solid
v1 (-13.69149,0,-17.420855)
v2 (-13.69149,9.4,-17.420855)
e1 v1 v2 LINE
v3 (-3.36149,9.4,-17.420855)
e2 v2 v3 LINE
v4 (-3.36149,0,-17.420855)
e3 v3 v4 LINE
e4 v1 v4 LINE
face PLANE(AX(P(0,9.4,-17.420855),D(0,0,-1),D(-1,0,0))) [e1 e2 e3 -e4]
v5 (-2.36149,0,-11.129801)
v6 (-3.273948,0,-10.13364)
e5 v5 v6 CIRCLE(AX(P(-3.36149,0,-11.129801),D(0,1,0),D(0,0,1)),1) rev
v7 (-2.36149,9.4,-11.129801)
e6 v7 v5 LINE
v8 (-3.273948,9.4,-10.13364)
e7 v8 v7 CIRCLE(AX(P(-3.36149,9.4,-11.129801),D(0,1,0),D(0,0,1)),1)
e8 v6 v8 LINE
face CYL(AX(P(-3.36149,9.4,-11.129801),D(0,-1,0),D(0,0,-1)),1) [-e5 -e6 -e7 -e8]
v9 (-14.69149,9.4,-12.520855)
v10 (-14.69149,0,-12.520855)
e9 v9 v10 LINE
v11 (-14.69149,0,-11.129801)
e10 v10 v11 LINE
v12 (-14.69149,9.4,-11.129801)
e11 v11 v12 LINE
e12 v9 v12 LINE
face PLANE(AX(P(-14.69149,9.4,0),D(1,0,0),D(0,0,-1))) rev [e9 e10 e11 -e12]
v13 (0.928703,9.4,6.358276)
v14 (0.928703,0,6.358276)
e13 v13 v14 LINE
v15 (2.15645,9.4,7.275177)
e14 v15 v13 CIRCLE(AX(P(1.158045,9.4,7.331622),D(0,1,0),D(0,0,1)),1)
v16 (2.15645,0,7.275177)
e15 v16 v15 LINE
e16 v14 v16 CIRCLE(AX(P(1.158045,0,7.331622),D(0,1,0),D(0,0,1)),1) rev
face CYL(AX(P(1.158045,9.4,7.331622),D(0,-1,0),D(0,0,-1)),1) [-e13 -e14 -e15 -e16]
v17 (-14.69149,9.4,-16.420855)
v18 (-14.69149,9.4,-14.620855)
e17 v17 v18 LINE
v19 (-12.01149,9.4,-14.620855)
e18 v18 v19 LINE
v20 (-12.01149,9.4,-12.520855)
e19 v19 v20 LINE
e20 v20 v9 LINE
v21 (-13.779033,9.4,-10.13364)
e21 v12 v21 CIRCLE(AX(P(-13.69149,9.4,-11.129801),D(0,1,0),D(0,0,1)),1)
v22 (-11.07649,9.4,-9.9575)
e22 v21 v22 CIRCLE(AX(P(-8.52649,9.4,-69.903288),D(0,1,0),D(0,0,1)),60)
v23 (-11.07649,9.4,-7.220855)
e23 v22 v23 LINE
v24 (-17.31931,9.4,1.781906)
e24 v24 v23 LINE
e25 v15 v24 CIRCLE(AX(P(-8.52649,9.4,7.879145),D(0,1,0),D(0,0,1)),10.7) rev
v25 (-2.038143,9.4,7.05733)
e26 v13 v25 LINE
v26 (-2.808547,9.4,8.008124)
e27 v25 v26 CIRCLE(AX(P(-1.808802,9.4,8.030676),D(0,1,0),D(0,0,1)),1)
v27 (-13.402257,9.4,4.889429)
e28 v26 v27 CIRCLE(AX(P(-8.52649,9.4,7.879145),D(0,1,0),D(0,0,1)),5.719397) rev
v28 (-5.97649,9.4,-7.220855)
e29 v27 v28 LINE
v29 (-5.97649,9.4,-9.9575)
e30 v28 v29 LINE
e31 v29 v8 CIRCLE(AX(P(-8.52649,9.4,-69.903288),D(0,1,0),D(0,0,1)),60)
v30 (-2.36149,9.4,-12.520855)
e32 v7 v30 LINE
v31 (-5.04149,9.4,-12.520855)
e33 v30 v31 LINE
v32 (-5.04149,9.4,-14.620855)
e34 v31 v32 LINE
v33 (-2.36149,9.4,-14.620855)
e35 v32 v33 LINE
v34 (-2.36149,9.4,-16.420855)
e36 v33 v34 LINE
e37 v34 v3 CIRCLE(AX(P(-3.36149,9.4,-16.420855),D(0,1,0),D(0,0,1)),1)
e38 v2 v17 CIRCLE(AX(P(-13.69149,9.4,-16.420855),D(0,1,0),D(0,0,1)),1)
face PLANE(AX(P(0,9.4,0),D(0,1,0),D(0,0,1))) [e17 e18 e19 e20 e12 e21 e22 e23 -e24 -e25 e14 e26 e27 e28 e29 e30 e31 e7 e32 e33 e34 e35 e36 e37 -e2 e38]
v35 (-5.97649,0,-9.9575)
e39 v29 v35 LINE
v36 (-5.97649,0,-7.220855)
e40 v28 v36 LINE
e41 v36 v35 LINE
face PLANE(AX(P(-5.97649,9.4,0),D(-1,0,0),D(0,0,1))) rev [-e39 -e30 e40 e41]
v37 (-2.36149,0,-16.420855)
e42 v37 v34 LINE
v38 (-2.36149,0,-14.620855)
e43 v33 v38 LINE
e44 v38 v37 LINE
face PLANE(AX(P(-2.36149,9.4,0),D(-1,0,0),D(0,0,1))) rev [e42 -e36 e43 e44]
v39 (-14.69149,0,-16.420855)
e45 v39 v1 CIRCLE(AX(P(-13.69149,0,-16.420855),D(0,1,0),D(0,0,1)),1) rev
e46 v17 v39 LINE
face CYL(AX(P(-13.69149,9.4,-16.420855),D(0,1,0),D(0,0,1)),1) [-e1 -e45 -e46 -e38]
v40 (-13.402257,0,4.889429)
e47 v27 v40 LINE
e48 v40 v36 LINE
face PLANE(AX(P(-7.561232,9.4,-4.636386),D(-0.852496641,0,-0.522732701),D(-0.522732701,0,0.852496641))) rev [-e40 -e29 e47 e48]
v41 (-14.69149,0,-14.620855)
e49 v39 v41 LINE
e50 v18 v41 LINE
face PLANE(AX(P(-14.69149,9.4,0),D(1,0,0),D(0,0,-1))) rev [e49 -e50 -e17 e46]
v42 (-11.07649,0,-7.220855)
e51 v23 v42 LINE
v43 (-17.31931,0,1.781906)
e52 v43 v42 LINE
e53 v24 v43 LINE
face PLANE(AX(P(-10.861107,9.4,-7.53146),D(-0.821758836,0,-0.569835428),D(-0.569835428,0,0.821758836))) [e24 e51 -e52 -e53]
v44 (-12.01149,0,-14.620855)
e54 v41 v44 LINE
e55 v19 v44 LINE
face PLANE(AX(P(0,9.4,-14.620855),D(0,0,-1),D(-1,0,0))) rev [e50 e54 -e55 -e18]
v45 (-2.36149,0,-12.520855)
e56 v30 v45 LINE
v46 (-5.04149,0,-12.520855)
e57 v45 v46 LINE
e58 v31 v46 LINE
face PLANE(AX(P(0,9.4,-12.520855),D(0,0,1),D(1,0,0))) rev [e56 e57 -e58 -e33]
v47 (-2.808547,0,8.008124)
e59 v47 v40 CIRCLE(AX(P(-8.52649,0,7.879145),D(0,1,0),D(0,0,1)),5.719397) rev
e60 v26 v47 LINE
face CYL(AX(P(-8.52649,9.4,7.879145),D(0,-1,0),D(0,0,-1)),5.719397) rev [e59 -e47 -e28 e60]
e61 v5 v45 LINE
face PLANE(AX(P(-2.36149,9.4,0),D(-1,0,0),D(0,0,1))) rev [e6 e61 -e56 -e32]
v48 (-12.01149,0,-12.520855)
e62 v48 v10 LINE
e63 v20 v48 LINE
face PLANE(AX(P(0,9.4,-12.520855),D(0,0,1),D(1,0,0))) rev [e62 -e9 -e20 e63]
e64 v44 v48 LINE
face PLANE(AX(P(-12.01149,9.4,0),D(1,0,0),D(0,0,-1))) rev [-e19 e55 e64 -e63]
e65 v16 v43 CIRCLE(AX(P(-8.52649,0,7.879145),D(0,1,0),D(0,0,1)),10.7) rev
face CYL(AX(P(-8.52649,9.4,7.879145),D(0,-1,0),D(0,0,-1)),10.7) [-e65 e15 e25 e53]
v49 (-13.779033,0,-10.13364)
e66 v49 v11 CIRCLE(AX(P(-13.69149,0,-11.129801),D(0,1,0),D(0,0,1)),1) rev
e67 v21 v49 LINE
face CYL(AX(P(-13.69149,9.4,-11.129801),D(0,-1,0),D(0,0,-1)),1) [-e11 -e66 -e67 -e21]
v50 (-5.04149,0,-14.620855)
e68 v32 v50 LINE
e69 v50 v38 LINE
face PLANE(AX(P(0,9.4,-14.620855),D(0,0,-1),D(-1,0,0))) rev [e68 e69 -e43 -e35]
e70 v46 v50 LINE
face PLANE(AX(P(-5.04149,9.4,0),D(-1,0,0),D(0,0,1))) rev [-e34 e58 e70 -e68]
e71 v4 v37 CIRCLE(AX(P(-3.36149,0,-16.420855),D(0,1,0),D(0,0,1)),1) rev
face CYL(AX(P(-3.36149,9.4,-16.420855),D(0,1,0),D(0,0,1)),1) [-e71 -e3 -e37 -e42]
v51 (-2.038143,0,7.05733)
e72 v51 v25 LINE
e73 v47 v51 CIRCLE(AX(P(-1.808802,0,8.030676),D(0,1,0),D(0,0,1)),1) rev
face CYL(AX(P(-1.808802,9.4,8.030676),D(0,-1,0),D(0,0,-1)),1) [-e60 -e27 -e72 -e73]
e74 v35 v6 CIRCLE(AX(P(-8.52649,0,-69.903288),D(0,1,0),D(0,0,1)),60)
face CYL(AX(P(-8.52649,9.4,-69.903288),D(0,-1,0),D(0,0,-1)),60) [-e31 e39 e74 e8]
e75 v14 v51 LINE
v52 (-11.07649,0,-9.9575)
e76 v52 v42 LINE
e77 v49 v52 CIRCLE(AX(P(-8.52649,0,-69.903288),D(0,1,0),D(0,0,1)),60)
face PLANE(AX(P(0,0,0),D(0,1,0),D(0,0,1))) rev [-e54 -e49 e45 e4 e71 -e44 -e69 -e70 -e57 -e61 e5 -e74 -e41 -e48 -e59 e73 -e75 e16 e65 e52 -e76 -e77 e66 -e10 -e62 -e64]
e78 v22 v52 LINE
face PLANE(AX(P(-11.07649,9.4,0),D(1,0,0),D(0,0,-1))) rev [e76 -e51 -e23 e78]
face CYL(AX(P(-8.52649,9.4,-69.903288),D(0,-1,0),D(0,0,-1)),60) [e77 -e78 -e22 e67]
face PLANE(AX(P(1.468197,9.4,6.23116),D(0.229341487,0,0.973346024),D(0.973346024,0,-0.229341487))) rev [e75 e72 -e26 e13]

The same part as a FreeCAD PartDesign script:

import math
import FreeCAD as App
import Part
import Sketcher

V = App.Vector
Q = App.Units.Quantity


def edges_at(feature, points):
    """Names of the edges that pass closest to the given points."""
    edges = feature.Shape.Edges
    near = lambda p: min(range(len(edges)), key=lambda i: edges[i].distToShape(Part.Vertex(*p))[0])
    return sorted({f"Edge{near(p) + 1}" for p in points})

doc = App.newDocument("Part")
params = doc.addObject("Spreadsheet::Sheet", "Params")
for row, (alias, value) in enumerate([
    ("sketch1_radius", "60 mm"),
    ("sketch1_radius2", "10.7 mm"),
    ("sketch1_length", "5 mm"),
    ("sketch1_height", "2.8 mm"),
    ("sketch1_height2", "2.1 mm"),
    ("pad1_length", "9.4 mm"),
    ("fillet_radius", "1 mm"),
], start=1):
    params.set(f"A{row}", alias)
    params.set(f"B{row}", "=" + value)
    params.setAlias(f"B{row}", alias)

body = doc.addObject("PartDesign::Body", "Body")

# Sketch on XZ plane
sketch1 = body.newObject("Sketcher::SketchObject", "Sketch")
sketch1.AttachmentSupport = (doc.getObject("XZ_Plane"), [""])
sketch1.MapMode = "FlatFace"
sketch1.addGeometry(Part.LineSegment(V(-2.36149, -17.420855, 0), V(-14.69149, -17.420855, 0)), False)
sketch1.addGeometry(Part.LineSegment(V(-14.69149, -17.420855, 0), V(-14.69149, -14.620855, 0)), False)
sketch1.addGeometry(Part.LineSegment(V(-14.69149, -14.620855, 0), V(-12.01149, -14.620855, 0)), False)
sketch1.addGeometry(Part.LineSegment(V(-12.01149, -14.620855, 0), V(-12.01149, -12.520855, 0)), False)
sketch1.addGeometry(Part.LineSegment(V(-12.01149, -12.520855, 0), V(-14.69149, -12.520855, 0)), False)
sketch1.addGeometry(Part.LineSegment(V(-14.69149, -12.520855, 0), V(-14.69149, -10.220855, 0)), False)
sketch1.addGeometry(Part.ArcOfCircle(Part.Circle(V(-8.52649, -69.903288, 0), V(0, 0, 1), 60), math.radians(92.435804), math.radians(95.89755)), False)
sketch1.addGeometry(Part.LineSegment(V(-11.07649, -9.9575, 0), V(-11.07649, -7.220855, 0)), False)
sketch1.addGeometry(Part.LineSegment(V(-11.07649, -7.220855, 0), V(-17.31931, 1.781906, 0)), False)
sketch1.addGeometry(Part.ArcOfCircle(Part.Circle(V(-8.52649, 7.879145, 0), V(0, 0, 1), 10.7), math.radians(-9.570963), math.radians(214.73875)), False)
sketch1.addGeometry(Part.LineSegment(V(2.02457, 6.100066, 0), V(-2.84216, 7.246774, 0)), False)
sketch1.addGeometry(Part.ArcOfCircle(Part.Circle(V(-8.52649, 7.879145, 0), V(0, 0, 1), 5.719397), math.radians(-6.347948), math.radians(211.515735)), False)
sketch1.addGeometry(Part.LineSegment(V(-13.402257, 4.889429, 0), V(-5.97649, -7.220855, 0)), False)
sketch1.addGeometry(Part.LineSegment(V(-5.97649, -7.220855, 0), V(-5.97649, -9.9575, 0)), False)
sketch1.addGeometry(Part.ArcOfCircle(Part.Circle(V(-8.52649, -69.903288, 0), V(0, 0, 1), 60), math.radians(84.10245), math.radians(87.564196)), False)
sketch1.addGeometry(Part.LineSegment(V(-2.36149, -10.220855, 0), V(-2.36149, -12.520855, 0)), False)
sketch1.addGeometry(Part.LineSegment(V(-2.36149, -12.520855, 0), V(-5.04149, -12.520855, 0)), False)
sketch1.addGeometry(Part.LineSegment(V(-5.04149, -12.520855, 0), V(-5.04149, -14.620855, 0)), False)
sketch1.addGeometry(Part.LineSegment(V(-5.04149, -14.620855, 0), V(-2.36149, -14.620855, 0)), False)
sketch1.addGeometry(Part.LineSegment(V(-2.36149, -14.620855, 0), V(-2.36149, -17.420855, 0)), False)
sketch1.addConstraint(Sketcher.Constraint("Coincident", 0, 2, 1, 1))
sketch1.addConstraint(Sketcher.Constraint("Coincident", 1, 2, 2, 1))
sketch1.addConstraint(Sketcher.Constraint("Coincident", 2, 2, 3, 1))
sketch1.addConstraint(Sketcher.Constraint("Coincident", 3, 2, 4, 1))
sketch1.addConstraint(Sketcher.Constraint("Coincident", 4, 2, 5, 1))
sketch1.addConstraint(Sketcher.Constraint("Coincident", 5, 2, 6, 2))
sketch1.addConstraint(Sketcher.Constraint("Coincident", 6, 1, 7, 1))
sketch1.addConstraint(Sketcher.Constraint("Coincident", 7, 2, 8, 1))
sketch1.addConstraint(Sketcher.Constraint("Tangent", 8, 2, 9, 2))
sketch1.addConstraint(Sketcher.Constraint("Coincident", 9, 1, 10, 1))
sketch1.addConstraint(Sketcher.Constraint("Coincident", 10, 2, 11, 1))
sketch1.addConstraint(Sketcher.Constraint("Tangent", 11, 2, 12, 1))
sketch1.addConstraint(Sketcher.Constraint("Coincident", 12, 2, 13, 1))
sketch1.addConstraint(Sketcher.Constraint("Coincident", 13, 2, 14, 2))
sketch1.addConstraint(Sketcher.Constraint("Coincident", 14, 1, 15, 1))
sketch1.addConstraint(Sketcher.Constraint("Coincident", 15, 2, 16, 1))
sketch1.addConstraint(Sketcher.Constraint("Coincident", 16, 2, 17, 1))
sketch1.addConstraint(Sketcher.Constraint("Coincident", 17, 2, 18, 1))
sketch1.addConstraint(Sketcher.Constraint("Coincident", 18, 2, 19, 1))
sketch1.addConstraint(Sketcher.Constraint("Coincident", 19, 2, 0, 1))
sketch1.addConstraint(Sketcher.Constraint("Horizontal", 0))
sketch1.addConstraint(Sketcher.Constraint("Vertical", 1))
sketch1.addConstraint(Sketcher.Constraint("Horizontal", 2))
sketch1.addConstraint(Sketcher.Constraint("Vertical", 3))
sketch1.addConstraint(Sketcher.Constraint("Horizontal", 4))
sketch1.addConstraint(Sketcher.Constraint("Vertical", 5))
sketch1.addConstraint(Sketcher.Constraint("Vertical", 7))
sketch1.addConstraint(Sketcher.Constraint("Vertical", 13))
sketch1.addConstraint(Sketcher.Constraint("Vertical", 15))
sketch1.addConstraint(Sketcher.Constraint("Horizontal", 16))
sketch1.addConstraint(Sketcher.Constraint("Vertical", 17))
sketch1.addConstraint(Sketcher.Constraint("Horizontal", 18))
sketch1.addConstraint(Sketcher.Constraint("Vertical", 19))
sketch1.addConstraint(Sketcher.Constraint("Coincident", 11, 3, 9, 3))
sketch1.addConstraint(Sketcher.Constraint("Coincident", 14, 3, 6, 3))
sketch1.addConstraint(Sketcher.Constraint("Equal", 6, 14))
sketch1.addConstraint(Sketcher.Constraint("Horizontal", 7, 2, 12, 2))
sketch1.addConstraint(Sketcher.Constraint("Horizontal", 6, 1, 13, 2))
sketch1.addConstraint(Sketcher.Constraint("Horizontal", 5, 2, 14, 1))
sketch1.addConstraint(Sketcher.Constraint("Horizontal", 4, 2, 15, 2))
sketch1.addConstraint(Sketcher.Constraint("Horizontal", 2, 2, 17, 2))
sketch1.addConstraint(Sketcher.Constraint("Vertical", 6, 3, 9, 3))
sketch1.addConstraint(Sketcher.Constraint("Vertical", 1, 2, 4, 2))
sketch1.addConstraint(Sketcher.Constraint("Vertical", 15, 2, 18, 2))
sketch1.addConstraint(Sketcher.Constraint("Equal", 4, 16))
sketch1.addConstraint(Sketcher.Constraint("Radius", 6, Q("60 mm")))
sketch1.addConstraint(Sketcher.Constraint("Radius", 9, Q("10.7 mm")))
sketch1.addConstraint(Sketcher.Constraint("Distance", 10, Q("5 mm")))
sketch1.addConstraint(Sketcher.Constraint("DistanceY", 1, 1, 1, 2, Q("2.8 mm")))
sketch1.addConstraint(Sketcher.Constraint("DistanceY", 3, 1, 3, 2, Q("2.1 mm")))
sketch1.addConstraint(Sketcher.Constraint("DistanceY", 5, 1, 5, 2, Q("2.3 mm")))
sketch1.addConstraint(Sketcher.Constraint("DistanceY", 5, 2, 7, 2, Q("3 mm")))
sketch1.addConstraint(Sketcher.Constraint("DistanceX", 0, 2, 0, 1, Q("12.33 mm")))
sketch1.addConstraint(Sketcher.Constraint("DistanceX", 2, 1, 2, 2, Q("2.68 mm")))
sketch1.addConstraint(Sketcher.Constraint("DistanceY", 0, 2, 11, 3, Q("25.3 mm")))
sketch1.addConstraint(Sketcher.Constraint("DistanceX", 7, 2, 12, 2, Q("5.1 mm")))
sketch1.addConstraint(Sketcher.Constraint("Radius", 11, Q("5.719397 mm")))
sketch1.addConstraint(Sketcher.Constraint("DistanceY", 6, 1, -1, 1, Q("9.9575 mm")))
sketch1.addConstraint(Sketcher.Constraint("DistanceX", 6, 3, -1, 1, Q("8.52649 mm")))
sketch1.addConstraint(Sketcher.Constraint("DistanceX", -1, 1, 9, 1, Q("2.02457 mm")))
sketch1.setExpression("Constraints[45]", "Params.sketch1_radius")
sketch1.setExpression("Constraints[46]", "Params.sketch1_radius2")
sketch1.setExpression("Constraints[47]", "Params.sketch1_length")
sketch1.setExpression("Constraints[48]", "Params.sketch1_height")
sketch1.setExpression("Constraints[49]", "Params.sketch1_height2")
pad1 = body.newObject("PartDesign::Pad", "Pad")
pad1.Profile = sketch1
pad1.setExpression("Length", "Params.pad1_length")
pad1.Reversed = True
doc.recompute()

fillet = body.newObject("PartDesign::Fillet", "Fillet")
fillet.Base = (pad1, edges_at(pad1, [
    (-2.842, 4.7, 7.247),
    (2.025, 4.7, 6.1),
    (-14.691, 4.7, -10.221),
    (-14.691, 4.7, -17.421),
    (-2.361, 4.7, -17.421),
    (-2.361, 4.7, -10.221),
]))
fillet.setExpression("Radius", "Params.fillet_radius")

doc.recompute()
